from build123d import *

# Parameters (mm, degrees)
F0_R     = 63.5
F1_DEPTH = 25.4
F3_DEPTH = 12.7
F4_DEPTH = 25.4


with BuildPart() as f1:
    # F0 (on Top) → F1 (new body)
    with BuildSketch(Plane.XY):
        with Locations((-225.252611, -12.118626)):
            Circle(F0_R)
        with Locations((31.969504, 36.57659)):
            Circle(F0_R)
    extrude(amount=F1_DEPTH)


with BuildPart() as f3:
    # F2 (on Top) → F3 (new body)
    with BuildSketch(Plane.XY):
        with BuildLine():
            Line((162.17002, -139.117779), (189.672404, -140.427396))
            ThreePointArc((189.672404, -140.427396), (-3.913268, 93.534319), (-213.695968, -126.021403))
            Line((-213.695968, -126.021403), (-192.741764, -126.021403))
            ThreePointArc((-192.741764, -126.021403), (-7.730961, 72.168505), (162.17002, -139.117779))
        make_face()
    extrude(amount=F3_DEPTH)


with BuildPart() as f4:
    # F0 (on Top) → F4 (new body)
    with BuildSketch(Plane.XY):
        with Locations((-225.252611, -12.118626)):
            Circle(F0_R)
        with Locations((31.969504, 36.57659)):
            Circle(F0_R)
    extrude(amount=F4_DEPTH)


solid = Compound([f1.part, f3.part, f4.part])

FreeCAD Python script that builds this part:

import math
import FreeCAD as App
import Part
import Sketcher
from FreeCAD import Vector
Q = App.Units.Quantity

doc = App.newDocument("Part")
body = doc.addObject("PartDesign::Body", "Body")
body.AllowCompound = True

# Sketch on XY plane
sketch1 = doc.addObject("Sketcher::SketchObject", "Sketch")
body.addObject(sketch1)
sketch1.AttachmentSupport = (doc.XY_Plane, [""])
sketch1.MapMode = "FlatFace"
sketch1.addGeometry([
    Part.Circle(Vector(-225, -12, 0), Vector(0, 0, 1), 64),
    Part.Circle(Vector(32, 37, 0), Vector(0, 0, 1), 64),
], False)
sketch1.addConstraint([
    Sketcher.Constraint("Equal", 0, 1),
    Sketcher.Constraint("Diameter", 0, Q("5 in")),
    Sketcher.Constraint("DistanceX", 0, 3, -1, 1, 225.252611),
    Sketcher.Constraint("DistanceY", -1, 1, 1, 3, 36.57659),
    Sketcher.Constraint("DistanceY", 0, 3, -1, 1, 12.118626),
    Sketcher.Constraint("DistanceX", -1, 1, 1, 3, 31.969504),
])
pad1 = doc.addObject("PartDesign::Pad", "Pad")
body.addObject(pad1)
pad1.Profile = sketch1
pad1.Length = Q("1 in")
body2 = doc.addObject("PartDesign::Body", "Body001")

# Sketch on XY plane
sketch2 = doc.addObject("Sketcher::SketchObject", "Sketch001")
body2.addObject(sketch2)
sketch2.AttachmentSupport = (doc.getObject("XY_Plane001"), [""])
sketch2.MapMode = "FlatFace"
sketch2.addGeometry([
    Part.LineSegment(Vector(162, -139, 0), Vector(190, -140, 0)),
    Part.ArcOfCircle(Part.Circle(Vector(-11, -110, 0), Vector(0, 0, 1), 203), math.radians(-9), math.radians(185)),
    Part.LineSegment(Vector(-214, -126, 0), Vector(-193, -126, 0)),
    Part.ArcOfCircle(Part.Circle(Vector(-14, -107, 0), Vector(0, 0, 1), 179), math.radians(-10), math.radians(186)),
], False)
sketch2.addConstraint([
    Sketcher.Constraint("Coincident", 0, 2, 1, 1),
    Sketcher.Constraint("Coincident", 1, 2, 2, 1),
    Sketcher.Constraint("Coincident", 2, 2, 3, 2),
    Sketcher.Constraint("Coincident", 3, 1, 0, 1),
    Sketcher.Constraint("Horizontal", 2),
    Sketcher.Constraint("Radius", 1, Q("8 in")),
    Sketcher.Constraint("Radius", 3, 179.395637),
    Sketcher.Constraint("DistanceX", 2, 1, 2, 2, 20.954204),
    Sketcher.Constraint("DistanceY", 3, 3, -1, 1, 107.105121),
    Sketcher.Constraint("DistanceX", 1, 2, -1, 1, 213.695968),
    Sketcher.Constraint("DistanceX", -1, 1, 3, 1, 162.17002),
    Sketcher.Constraint("DistanceY", 3, 1, -1, 1, 139.117779),
    Sketcher.Constraint("DistanceX", 1, 3, 0, 2, 200.838181),
    Sketcher.Constraint("DistanceX", 1, 2, 1, 3, 202.530191),
])
pad2 = doc.addObject("PartDesign::Pad", "Pad001")
body2.addObject(pad2)
pad2.Profile = sketch2
pad2.Length = Q("0.5 in")
body3 = doc.addObject("PartDesign::Body", "Body002")
body3.AllowCompound = True

# Sketch on XY plane
sketch3 = doc.addObject("Sketcher::SketchObject", "Sketch002")
body3.addObject(sketch3)
sketch3.AttachmentSupport = (doc.getObject("XY_Plane002"), [""])
sketch3.MapMode = "FlatFace"
sketch3.addGeometry([
    Part.Circle(Vector(-225, -12, 0), Vector(0, 0, 1), 64),
    Part.Circle(Vector(32, 37, 0), Vector(0, 0, 1), 64),
], False)
sketch3.addConstraint([
    Sketcher.Constraint("Equal", 0, 1),
    Sketcher.Constraint("Diameter", 0, Q("5 in")),
    Sketcher.Constraint("DistanceX", 0, 3, -1, 1, 225.252611),
    Sketcher.Constraint("DistanceY", -1, 1, 1, 3, 36.57659),
    Sketcher.Constraint("DistanceY", 0, 3, -1, 1, 12.118626),
    Sketcher.Constraint("DistanceX", -1, 1, 1, 3, 31.969504),
])
pad3 = doc.addObject("PartDesign::Pad", "Pad002")
body3.addObject(pad3)
pad3.Profile = sketch3
pad3.Length = Q("1 in")

doc.recompute()
